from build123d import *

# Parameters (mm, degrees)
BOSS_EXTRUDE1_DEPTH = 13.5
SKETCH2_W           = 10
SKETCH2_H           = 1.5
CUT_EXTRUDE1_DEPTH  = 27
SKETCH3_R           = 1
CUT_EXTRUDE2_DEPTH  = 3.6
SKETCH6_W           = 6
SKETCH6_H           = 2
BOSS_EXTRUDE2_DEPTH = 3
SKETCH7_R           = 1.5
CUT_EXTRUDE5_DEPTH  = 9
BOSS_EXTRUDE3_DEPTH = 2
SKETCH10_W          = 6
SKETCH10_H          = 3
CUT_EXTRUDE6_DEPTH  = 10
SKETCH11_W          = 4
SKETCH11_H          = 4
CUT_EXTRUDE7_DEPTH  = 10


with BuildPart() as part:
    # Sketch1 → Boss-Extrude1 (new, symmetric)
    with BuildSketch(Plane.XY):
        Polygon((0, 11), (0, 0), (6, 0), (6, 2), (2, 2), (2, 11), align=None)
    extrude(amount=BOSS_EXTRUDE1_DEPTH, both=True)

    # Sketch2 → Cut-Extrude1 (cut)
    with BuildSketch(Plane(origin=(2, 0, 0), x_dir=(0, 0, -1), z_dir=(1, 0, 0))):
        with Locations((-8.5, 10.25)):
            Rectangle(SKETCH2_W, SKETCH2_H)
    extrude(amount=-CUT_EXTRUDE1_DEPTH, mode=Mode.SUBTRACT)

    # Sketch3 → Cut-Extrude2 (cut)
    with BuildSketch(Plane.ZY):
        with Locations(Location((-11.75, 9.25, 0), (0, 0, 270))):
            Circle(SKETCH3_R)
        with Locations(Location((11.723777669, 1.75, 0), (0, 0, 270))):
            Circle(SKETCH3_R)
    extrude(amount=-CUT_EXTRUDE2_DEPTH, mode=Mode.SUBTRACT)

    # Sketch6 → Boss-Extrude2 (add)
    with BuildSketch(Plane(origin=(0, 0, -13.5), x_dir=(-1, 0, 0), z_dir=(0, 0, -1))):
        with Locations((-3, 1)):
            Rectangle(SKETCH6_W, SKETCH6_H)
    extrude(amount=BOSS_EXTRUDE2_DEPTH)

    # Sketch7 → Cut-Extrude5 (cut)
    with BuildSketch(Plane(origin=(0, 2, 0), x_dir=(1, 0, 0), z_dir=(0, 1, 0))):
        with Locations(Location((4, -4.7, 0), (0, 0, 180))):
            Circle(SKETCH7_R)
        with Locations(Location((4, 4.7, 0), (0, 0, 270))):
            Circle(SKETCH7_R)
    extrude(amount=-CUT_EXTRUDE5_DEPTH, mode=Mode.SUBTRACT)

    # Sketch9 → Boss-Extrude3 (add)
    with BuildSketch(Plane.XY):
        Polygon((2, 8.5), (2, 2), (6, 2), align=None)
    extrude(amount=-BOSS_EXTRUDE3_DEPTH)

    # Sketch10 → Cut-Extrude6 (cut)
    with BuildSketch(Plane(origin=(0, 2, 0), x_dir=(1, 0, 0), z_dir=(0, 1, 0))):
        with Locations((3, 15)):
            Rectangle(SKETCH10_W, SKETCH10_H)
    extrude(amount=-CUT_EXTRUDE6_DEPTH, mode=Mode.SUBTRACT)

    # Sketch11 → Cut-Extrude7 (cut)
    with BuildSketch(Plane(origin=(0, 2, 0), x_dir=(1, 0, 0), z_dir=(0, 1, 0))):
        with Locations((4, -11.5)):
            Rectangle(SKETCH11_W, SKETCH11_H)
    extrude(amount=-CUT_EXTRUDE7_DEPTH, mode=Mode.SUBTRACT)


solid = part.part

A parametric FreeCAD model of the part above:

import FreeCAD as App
import Part
import Sketcher

V = App.Vector


def add_polygon(sketch, points):
    """Adds a closed chain of lines whose ends are joined by coincident constraints."""
    first, n = sketch.GeometryCount, len(points)
    for a, b in zip(points, points[1:] + points[:1]):
        sketch.addGeometry(Part.LineSegment(App.Vector(*a, 0), App.Vector(*b, 0)), False)
    for i in range(n):
        sketch.addConstraint(Sketcher.Constraint("Coincident", first + i, 2, first + (i + 1) % n, 1))

doc = App.newDocument("Part")
params = doc.addObject("Spreadsheet::Sheet", "Params")
for row, (alias, value) in enumerate([
    ("sketch1_width", "6 mm"),
    ("sketch1_width2", "4 mm"),
    ("sketch1_height", "11 mm"),
    ("pad1_length", "27 mm"),
    ("sketch2_height", "10 mm"),
    ("sketch2_width", "1.5 mm"),
    ("pocket1_length", "27 mm"),
    ("sketch3_diameter", "2 mm"),
    ("pocket2_length", "3.6 mm"),
    ("sketch4_width", "6 mm"),
    ("sketch4_height", "2 mm"),
    ("pad2_length", "3 mm"),
    ("sketch5_diameter", "3 mm"),
    ("pocket3_length", "9 mm"),
    ("sketch6_width", "4 mm"),
    ("sketch6_height", "6.5 mm"),
    ("pad3_length", "2 mm"),
    ("sketch7_width", "6 mm"),
    ("sketch7_height", "3 mm"),
    ("pocket4_length", "10 mm"),
    ("sketch8_width", "4 mm"),
    ("pocket5_length", "10 mm"),
], start=1):
    params.set(f"A{row}", alias)
    params.set(f"B{row}", "=" + value)
    params.setAlias(f"B{row}", alias)

body = doc.addObject("PartDesign::Body", "Body")

# Sketch on XY plane
sketch1 = doc.addObject("Sketcher::SketchObject", "Sketch")
body.addObject(sketch1)
sketch1.AttachmentSupport = (doc.XY_Plane, [""])
sketch1.MapMode = "FlatFace"
add_polygon(sketch1, [(0, 11), (0, 0), (6, 0), (6, 2), (2, 2), (2, 11)])  # lines 0-5
sketch1.addConstraint([
    Sketcher.Constraint("Vertical", 0),
    Sketcher.Constraint("Horizontal", 1),
    Sketcher.Constraint("Vertical", 2),
    Sketcher.Constraint("Horizontal", 3),
    Sketcher.Constraint("Vertical", 4),
    Sketcher.Constraint("Horizontal", 5),
    Sketcher.Constraint("Coincident", 0, 2, -1, 1),
    Sketcher.Constraint("Equal", 5, 2),
    Sketcher.Constraint("DistanceX", 1, 1, 1, 2, 6.0),
    Sketcher.Constraint("DistanceX", 3, 2, 3, 1, 4.0),
    Sketcher.Constraint("DistanceY", 0, 2, 0, 1, 11.0),
])
sketch1.setExpression("Constraints[14]", "Params.sketch1_width")
sketch1.setExpression("Constraints[15]", "Params.sketch1_width2")
sketch1.setExpression("Constraints[16]", "Params.sketch1_height")
pad1 = doc.addObject("PartDesign::Pad", "Pad")
body.addObject(pad1)
pad1.Profile = sketch1
pad1.setExpression("Length", "Params.pad1_length")
pad1.Midplane = True

# Sketch on YZ plane
sketch2 = doc.addObject("Sketcher::SketchObject", "Sketch001")
body.addObject(sketch2)
sketch2.AttachmentSupport = (doc.YZ_Plane, [""])
sketch2.MapMode = "FlatFace"
sketch2.AttachmentOffset = App.Placement(V(0, 0, 2), App.Rotation())
add_polygon(sketch2, [(11, 13.5), (9.5, 13.5), (9.5, 3.5), (11, 3.5)])  # lines 0-3
sketch2.addConstraint([
    Sketcher.Constraint("Horizontal", 0),
    Sketcher.Constraint("Vertical", 1),
    Sketcher.Constraint("Horizontal", 2),
    Sketcher.Constraint("Vertical", 3),
    Sketcher.Constraint("DistanceY", 1, 2, 1, 1, 10.0),
    Sketcher.Constraint("DistanceX", 0, 2, 0, 1, 1.5),
    Sketcher.Constraint("DistanceX", -1, 1, 2, 2, 11.0),
    Sketcher.Constraint("DistanceY", -1, 1, 0, 2, 13.5),
])
sketch2.setExpression("Constraints[8]", "Params.sketch2_height")
sketch2.setExpression("Constraints[9]", "Params.sketch2_width")
pocket1 = doc.addObject("PartDesign::Pocket", "Pocket")
body.addObject(pocket1)
pocket1.Profile = sketch2
pocket1.setExpression("Length", "Params.pocket1_length")

# Sketch on YZ plane
sketch3 = doc.addObject("Sketcher::SketchObject", "Sketch002")
body.addObject(sketch3)
sketch3.AttachmentSupport = (doc.YZ_Plane, [""])
sketch3.MapMode = "FlatFace"
sketch3.addGeometry([
    Part.Circle(V(9.25, -11.75, 0), V(0, 0, 1), 1),
    Part.Circle(V(1.75, 11.723778, 0), V(0, 0, 1), 1),
], False)
sketch3.addConstraint([
    Sketcher.Constraint("Equal", 0, 1),
    Sketcher.Constraint("Diameter", 0, 2.0),
    Sketcher.Constraint("DistanceX", 1, 3, 0, 3, 7.5),
    Sketcher.Constraint("DistanceX", -1, 1, 0, 3, 9.25),
    Sketcher.Constraint("DistanceY", 0, 3, -1, 1, 11.75),
    Sketcher.Constraint("DistanceY", -1, 1, 1, 3, 11.723778),
])
sketch3.setExpression("Constraints[1]", "Params.sketch3_diameter")
pocket2 = doc.addObject("PartDesign::Pocket", "Pocket001")
body.addObject(pocket2)
pocket2.Profile = sketch3
pocket2.setExpression("Length", "Params.pocket2_length")
pocket2.Reversed = True

# Sketch on XY plane
sketch4 = doc.addObject("Sketcher::SketchObject", "Sketch003")
body.addObject(sketch4)
sketch4.AttachmentSupport = (doc.XY_Plane, [""])
sketch4.MapMode = "FlatFace"
sketch4.AttachmentOffset = App.Placement(V(0, 0, -13.5), App.Rotation())
add_polygon(sketch4, [(6, 2), (6, 0), (0, 0), (0, 2)])  # lines 0-3
sketch4.addConstraint([
    Sketcher.Constraint("Vertical", 0),
    Sketcher.Constraint("Horizontal", 1),
    Sketcher.Constraint("Vertical", 2),
    Sketcher.Constraint("Horizontal", 3),
    Sketcher.Constraint("Coincident", 1, 2, -1, 1),
    Sketcher.Constraint("DistanceX", 1, 2, 1, 1, 6.0),
    Sketcher.Constraint("DistanceY", 0, 2, 0, 1, 2.0),
])
sketch4.setExpression("Constraints[9]", "Params.sketch4_width")
sketch4.setExpression("Constraints[10]", "Params.sketch4_height")
pad2 = doc.addObject("PartDesign::Pad", "Pad001")
body.addObject(pad2)
pad2.Profile = sketch4
pad2.setExpression("Length", "Params.pad2_length")
pad2.Reversed = True

# Sketch on XZ plane
sketch5 = doc.addObject("Sketcher::SketchObject", "Sketch004")
body.addObject(sketch5)
sketch5.AttachmentSupport = (doc.XZ_Plane, [""])
sketch5.MapMode = "FlatFace"
sketch5.AttachmentOffset = App.Placement(V(0, 0, -2), App.Rotation())
sketch5.addGeometry([
    Part.Circle(V(4, 4.7, 0), V(0, 0, 1), 1.5),
    Part.Circle(V(4, -4.7, 0), V(0, 0, 1), 1.5),
], False)
sketch5.addConstraint([
    Sketcher.Constraint("Equal", 0, 1),
    Sketcher.Constraint("Symmetric", 0, 3, 1, 3, -1),
    Sketcher.Constraint("Diameter", 0, 3.0),
    Sketcher.Constraint("DistanceX", -1, 1, 0, 3, 4.0),
    Sketcher.Constraint("DistanceY", -1, 1, 0, 3, 4.7),
])
sketch5.setExpression("Constraints[2]", "Params.sketch5_diameter")
pocket3 = doc.addObject("PartDesign::Pocket", "Pocket002")
body.addObject(pocket3)
pocket3.Profile = sketch5
pocket3.setExpression("Length", "Params.pocket3_length")
pocket3.Reversed = True

# Sketch on XY plane
sketch6 = doc.addObject("Sketcher::SketchObject", "Sketch005")
body.addObject(sketch6)
sketch6.AttachmentSupport = (doc.XY_Plane, [""])
sketch6.MapMode = "FlatFace"
add_polygon(sketch6, [(2, 8.5), (2, 2), (6, 2)])  # lines 0-2
sketch6.addConstraint([
    Sketcher.Constraint("Vertical", 0),
    Sketcher.Constraint("Horizontal", 1),
    Sketcher.Constraint("DistanceX", 1, 1, 1, 2, 4.0),
    Sketcher.Constraint("DistanceY", 0, 2, 0, 1, 6.5),
    Sketcher.Constraint("DistanceX", -1, 1, 0, 2, 2.0),
    Sketcher.Constraint("DistanceY", -1, 1, 0, 2, 2.0),
])
sketch6.setExpression("Constraints[5]", "Params.sketch6_width")
sketch6.setExpression("Constraints[6]", "Params.sketch6_height")
pad3 = doc.addObject("PartDesign::Pad", "Pad002")
body.addObject(pad3)
pad3.Profile = sketch6
pad3.setExpression("Length", "Params.pad3_length")
pad3.Reversed = True

# Sketch on XZ plane
sketch7 = doc.addObject("Sketcher::SketchObject", "Sketch006")
body.addObject(sketch7)
sketch7.AttachmentSupport = (doc.XZ_Plane, [""])
sketch7.MapMode = "FlatFace"
sketch7.AttachmentOffset = App.Placement(V(0, 0, -2), App.Rotation())
add_polygon(sketch7, [(0, -16.5), (0, -13.5), (6, -13.5), (6, -16.5)])  # lines 0-3
sketch7.addConstraint([
    Sketcher.Constraint("Vertical", 0),
    Sketcher.Constraint("Horizontal", 1),
    Sketcher.Constraint("Vertical", 2),
    Sketcher.Constraint("Horizontal", 3),
    Sketcher.Constraint("PointOnObject", 0, 2, -2),
    Sketcher.Constraint("DistanceX", 1, 1, 1, 2, 6.0),
    Sketcher.Constraint("DistanceY", 0, 1, 0, 2, 3.0),
    Sketcher.Constraint("DistanceY", 0, 2, -1, 1, 13.5),
])
sketch7.setExpression("Constraints[9]", "Params.sketch7_width")
sketch7.setExpression("Constraints[10]", "Params.sketch7_height")
pocket4 = doc.addObject("PartDesign::Pocket", "Pocket003")
body.addObject(pocket4)
pocket4.Profile = sketch7
pocket4.setExpression("Length", "Params.pocket4_length")
pocket4.Reversed = True

# Sketch on XZ plane
sketch8 = doc.addObject("Sketcher::SketchObject", "Sketch007")
body.addObject(sketch8)
sketch8.AttachmentSupport = (doc.XZ_Plane, [""])
sketch8.MapMode = "FlatFace"
sketch8.AttachmentOffset = App.Placement(V(0, 0, -2), App.Rotation())
add_polygon(sketch8, [(2, 9.5), (2, 13.5), (6, 13.5), (6, 9.5)])  # lines 0-3
sketch8.addConstraint([
    Sketcher.Constraint("Vertical", 0),
    Sketcher.Constraint("Horizontal", 1),
    Sketcher.Constraint("Vertical", 2),
    Sketcher.Constraint("Horizontal", 3),
    Sketcher.Constraint("Equal", 3, 0),
    Sketcher.Constraint("DistanceX", 1, 1, 1, 2, 4.0),
    Sketcher.Constraint("DistanceX", -1, 1, 0, 2, 2.0),
    Sketcher.Constraint("DistanceY", -1, 1, 0, 2, 13.5),
])
sketch8.setExpression("Constraints[9]", "Params.sketch8_width")
pocket5 = doc.addObject("PartDesign::Pocket", "Pocket004")
body.addObject(pocket5)
pocket5.Profile = sketch8
pocket5.setExpression("Length", "Params.pocket5_length")
pocket5.Reversed = True

doc.recompute()
